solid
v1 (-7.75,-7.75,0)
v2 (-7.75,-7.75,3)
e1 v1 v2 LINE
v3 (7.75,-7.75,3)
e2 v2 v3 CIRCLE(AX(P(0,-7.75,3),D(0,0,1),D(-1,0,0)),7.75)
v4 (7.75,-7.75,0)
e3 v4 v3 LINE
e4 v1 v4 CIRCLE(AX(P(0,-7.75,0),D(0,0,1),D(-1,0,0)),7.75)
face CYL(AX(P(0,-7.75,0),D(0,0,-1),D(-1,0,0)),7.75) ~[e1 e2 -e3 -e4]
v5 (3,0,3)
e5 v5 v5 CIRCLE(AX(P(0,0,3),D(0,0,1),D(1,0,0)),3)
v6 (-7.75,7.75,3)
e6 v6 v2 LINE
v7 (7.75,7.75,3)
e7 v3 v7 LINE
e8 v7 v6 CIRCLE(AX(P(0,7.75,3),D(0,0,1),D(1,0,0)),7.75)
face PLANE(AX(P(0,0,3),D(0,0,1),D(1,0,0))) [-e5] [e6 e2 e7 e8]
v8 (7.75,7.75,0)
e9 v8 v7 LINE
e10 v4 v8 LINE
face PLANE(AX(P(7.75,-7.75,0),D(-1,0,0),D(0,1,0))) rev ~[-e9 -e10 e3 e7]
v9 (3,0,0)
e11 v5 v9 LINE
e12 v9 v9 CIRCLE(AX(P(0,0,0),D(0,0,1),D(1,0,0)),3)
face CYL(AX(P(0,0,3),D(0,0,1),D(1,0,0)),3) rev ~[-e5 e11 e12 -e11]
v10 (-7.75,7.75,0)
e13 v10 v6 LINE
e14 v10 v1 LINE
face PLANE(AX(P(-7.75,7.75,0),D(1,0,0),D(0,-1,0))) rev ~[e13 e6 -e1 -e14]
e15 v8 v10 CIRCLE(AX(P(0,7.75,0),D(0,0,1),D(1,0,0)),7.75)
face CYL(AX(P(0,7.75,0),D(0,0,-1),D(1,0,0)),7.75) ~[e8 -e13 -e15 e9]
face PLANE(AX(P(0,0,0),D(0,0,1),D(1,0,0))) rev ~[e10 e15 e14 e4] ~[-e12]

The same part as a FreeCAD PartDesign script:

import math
import FreeCAD as App
import Part
import Sketcher
from FreeCAD import Vector
Q = App.Units.Quantity

doc = App.newDocument("Part")
body = doc.addObject("PartDesign::Body", "Body")

# Sketch on XY plane
sketch1 = body.newObject("Sketcher::SketchObject", "Sketch")
sketch1.AttachmentSupport = (doc.getObject("XY_Plane"), [""])
sketch1.MapMode = "FlatFace"
sketch1.addGeometry([
    Part.ArcOfCircle(Part.Circle(Vector(0, 7.75, 0), Vector(0, 0, 1), 7.75), math.radians(0), math.radians(180)),
    Part.LineSegment(Vector(-7.75, 7.75, 0), Vector(-7.75, -7.75, 0)),
    Part.ArcOfCircle(Part.Circle(Vector(0, -7.75, 0), Vector(0, 0, 1), 7.75), math.radians(180), math.radians(360)),
    Part.LineSegment(Vector(7.75, -7.75, 0), Vector(7.75, 7.75, 0)),
], False)
sketch1.addConstraint([
    Sketcher.Constraint("Tangent", 0, 2, 1, 1),
    Sketcher.Constraint("Tangent", 1, 2, 2, 1),
    Sketcher.Constraint("Tangent", 2, 2, 3, 1),
    Sketcher.Constraint("Tangent", 3, 2, 0, 1),
    Sketcher.Constraint("Vertical", 1),
    Sketcher.Constraint("Vertical", 3),
    Sketcher.Constraint("Symmetric", 0, 3, 2, 3, -1, 1),
    Sketcher.Constraint("Radius", 0, Q("7.75 mm")),
    Sketcher.Constraint("DistanceY", 1, 2, 1, 1, Q("15.5 mm")),
])
pad1 = body.newObject("PartDesign::Pad", "Pad")
pad1.Profile = sketch1
pad1.Length = 3

# Sketch on XY plane
sketch2 = body.newObject("Sketcher::SketchObject", "Sketch001")
sketch2.AttachmentSupport = (doc.getObject("XY_Plane"), [""])
sketch2.MapMode = "FlatFace"
sketch2.AttachmentOffset = App.Placement(Vector(0, 0, 3), App.Rotation())
sketch2.addGeometry(Part.Circle(Vector(0, 0, 0), Vector(0, 0, 1), 3), False)
sketch2.addConstraint([
    Sketcher.Constraint("Coincident", 0, 3, -1, 1),
    Sketcher.Constraint("Diameter", 0, Q("6 mm")),
])
pocket1 = body.newObject("PartDesign::Pocket", "Pocket")
pocket1.Profile = sketch2
pocket1.Length = 25

doc.recompute()
